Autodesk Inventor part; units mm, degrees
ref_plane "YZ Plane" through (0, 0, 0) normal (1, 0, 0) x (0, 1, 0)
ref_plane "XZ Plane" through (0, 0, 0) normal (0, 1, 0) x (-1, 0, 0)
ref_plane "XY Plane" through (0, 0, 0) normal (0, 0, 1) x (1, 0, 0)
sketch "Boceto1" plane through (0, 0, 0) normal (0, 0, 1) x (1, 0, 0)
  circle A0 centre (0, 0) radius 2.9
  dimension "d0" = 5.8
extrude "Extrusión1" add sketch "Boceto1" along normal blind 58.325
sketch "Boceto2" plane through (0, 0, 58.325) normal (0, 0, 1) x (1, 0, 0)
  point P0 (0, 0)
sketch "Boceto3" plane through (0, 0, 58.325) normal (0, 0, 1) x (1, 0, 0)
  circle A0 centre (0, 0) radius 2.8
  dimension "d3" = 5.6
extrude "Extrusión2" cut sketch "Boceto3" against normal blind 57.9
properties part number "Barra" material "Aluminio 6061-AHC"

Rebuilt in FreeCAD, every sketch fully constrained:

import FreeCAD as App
import Part
import Sketcher
Q = App.Units.Quantity

doc = App.newDocument("Part")
body = doc.addObject("PartDesign::Body", "Body")

# Sketch on XY plane
sketch1 = body.newObject("Sketcher::SketchObject", "Sketch")
sketch1.AttachmentSupport = (doc.getObject("XY_Plane"), [""])
sketch1.MapMode = "FlatFace"
sketch1.addGeometry(Part.Circle(App.Vector(0, 0, 0), App.Vector(0, 0, 1), 2.9), False)
sketch1.addConstraint([
    Sketcher.Constraint("Coincident", 0, 3, -1, 1),
    Sketcher.Constraint("Diameter", 0, Q("5.8 mm")),
])
pad1 = body.newObject("PartDesign::Pad", "Pad")
pad1.Profile = sketch1
pad1.Length = 58.325

# Sketch on XY plane
sketch2 = body.newObject("Sketcher::SketchObject", "Sketch001")
sketch2.AttachmentSupport = (doc.getObject("XY_Plane"), [""])
sketch2.MapMode = "FlatFace"
sketch2.AttachmentOffset = App.Placement(App.Vector(0, 0, 58.325), App.Rotation())
sketch2.addGeometry(Part.Circle(App.Vector(0, 0, 0), App.Vector(0, 0, 1), 2.8), False)
sketch2.addConstraint([
    Sketcher.Constraint("Coincident", 0, 3, -1, 1),
    Sketcher.Constraint("Diameter", 0, Q("5.6 mm")),
])
pocket1 = body.newObject("PartDesign::Pocket", "Pocket")
pocket1.Profile = sketch2
pocket1.Length = 57.9

doc.recompute()
